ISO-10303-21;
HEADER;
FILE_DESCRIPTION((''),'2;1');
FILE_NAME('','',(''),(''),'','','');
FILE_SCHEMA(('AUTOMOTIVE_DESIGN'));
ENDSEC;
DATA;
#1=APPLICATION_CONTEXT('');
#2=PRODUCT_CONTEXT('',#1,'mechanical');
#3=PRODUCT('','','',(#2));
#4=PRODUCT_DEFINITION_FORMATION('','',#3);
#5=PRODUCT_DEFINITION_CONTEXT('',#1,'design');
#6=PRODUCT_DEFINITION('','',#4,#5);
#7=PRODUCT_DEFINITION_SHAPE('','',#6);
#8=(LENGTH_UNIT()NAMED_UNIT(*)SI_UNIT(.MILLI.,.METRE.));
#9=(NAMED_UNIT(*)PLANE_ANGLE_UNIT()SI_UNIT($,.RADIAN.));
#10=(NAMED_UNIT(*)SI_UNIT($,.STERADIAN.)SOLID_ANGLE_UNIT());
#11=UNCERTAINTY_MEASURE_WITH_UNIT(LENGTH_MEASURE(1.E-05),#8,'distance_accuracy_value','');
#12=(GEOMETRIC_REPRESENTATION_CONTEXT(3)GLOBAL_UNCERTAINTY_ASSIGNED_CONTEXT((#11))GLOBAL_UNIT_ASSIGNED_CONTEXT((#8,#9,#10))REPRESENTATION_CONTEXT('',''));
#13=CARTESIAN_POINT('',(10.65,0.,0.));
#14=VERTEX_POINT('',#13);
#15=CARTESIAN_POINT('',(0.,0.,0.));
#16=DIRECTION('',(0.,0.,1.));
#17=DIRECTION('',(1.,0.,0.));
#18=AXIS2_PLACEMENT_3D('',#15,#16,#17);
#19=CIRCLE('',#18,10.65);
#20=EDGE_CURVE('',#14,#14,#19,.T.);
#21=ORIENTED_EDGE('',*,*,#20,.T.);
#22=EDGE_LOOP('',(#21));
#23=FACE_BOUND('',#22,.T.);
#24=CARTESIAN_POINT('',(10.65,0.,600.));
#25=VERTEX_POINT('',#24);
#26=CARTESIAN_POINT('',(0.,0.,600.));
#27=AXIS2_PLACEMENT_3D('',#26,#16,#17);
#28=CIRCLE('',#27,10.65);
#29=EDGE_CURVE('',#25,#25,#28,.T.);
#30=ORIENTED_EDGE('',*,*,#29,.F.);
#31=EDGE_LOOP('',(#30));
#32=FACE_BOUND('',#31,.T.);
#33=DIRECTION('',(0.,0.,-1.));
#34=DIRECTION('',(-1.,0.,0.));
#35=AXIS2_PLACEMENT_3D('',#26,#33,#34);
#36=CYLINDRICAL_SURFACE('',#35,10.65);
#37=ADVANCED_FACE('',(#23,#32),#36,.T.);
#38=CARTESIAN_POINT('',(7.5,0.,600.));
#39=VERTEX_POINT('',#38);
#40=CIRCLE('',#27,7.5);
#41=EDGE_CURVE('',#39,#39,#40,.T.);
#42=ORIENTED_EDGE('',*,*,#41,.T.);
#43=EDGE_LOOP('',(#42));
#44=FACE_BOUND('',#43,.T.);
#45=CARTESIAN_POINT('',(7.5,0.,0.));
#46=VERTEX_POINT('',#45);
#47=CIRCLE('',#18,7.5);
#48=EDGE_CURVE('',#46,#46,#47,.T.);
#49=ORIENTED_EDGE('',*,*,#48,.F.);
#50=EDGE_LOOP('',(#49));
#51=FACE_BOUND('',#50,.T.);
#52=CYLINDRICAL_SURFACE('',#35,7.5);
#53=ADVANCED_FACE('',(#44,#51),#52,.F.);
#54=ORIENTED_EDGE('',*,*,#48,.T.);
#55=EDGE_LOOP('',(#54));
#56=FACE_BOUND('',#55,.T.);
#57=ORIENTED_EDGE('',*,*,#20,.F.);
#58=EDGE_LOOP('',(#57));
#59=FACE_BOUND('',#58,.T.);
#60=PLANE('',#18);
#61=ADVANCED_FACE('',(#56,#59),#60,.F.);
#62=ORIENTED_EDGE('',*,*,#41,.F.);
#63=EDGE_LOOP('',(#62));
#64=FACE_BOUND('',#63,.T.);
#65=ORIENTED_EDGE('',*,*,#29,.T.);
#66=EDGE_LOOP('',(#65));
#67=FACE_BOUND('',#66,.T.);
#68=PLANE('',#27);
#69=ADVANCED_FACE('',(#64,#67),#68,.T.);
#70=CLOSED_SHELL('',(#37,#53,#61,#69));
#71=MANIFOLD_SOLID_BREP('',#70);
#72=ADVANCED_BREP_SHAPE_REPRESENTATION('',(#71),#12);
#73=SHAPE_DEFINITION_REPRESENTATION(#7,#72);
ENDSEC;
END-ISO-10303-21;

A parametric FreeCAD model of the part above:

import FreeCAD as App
import Part
import Sketcher

V = App.Vector
Q = App.Units.Quantity

doc = App.newDocument("Part")
body = doc.addObject("PartDesign::Body", "Body")

sketch1 = body.newObject("Sketcher::SketchObject", "Sketch")
sketch1.AttachmentSupport = (doc.getObject("XY_Plane"), [""])
sketch1.MapMode = "FlatFace"
sketch1.addGeometry([
    Part.Circle(V(0, 0, 0), V(0, 0, 1), 11),
    Part.Circle(V(0, 0, 0), V(0, 0, 1), 8),
], False)
sketch1.addConstraint([
    Sketcher.Constraint("Coincident", 0, 3, -1, 1),
    Sketcher.Constraint("Coincident", 1, 3, -1, 1),
    Sketcher.Constraint("Diameter", 1, Q("15 mm")),
    Sketcher.Constraint("Diameter", 0, Q("21.3 mm")),
])
pad1 = body.newObject("PartDesign::Pad", "Pad")
pad1.Profile = sketch1
pad1.Length = 600

doc.recompute()
